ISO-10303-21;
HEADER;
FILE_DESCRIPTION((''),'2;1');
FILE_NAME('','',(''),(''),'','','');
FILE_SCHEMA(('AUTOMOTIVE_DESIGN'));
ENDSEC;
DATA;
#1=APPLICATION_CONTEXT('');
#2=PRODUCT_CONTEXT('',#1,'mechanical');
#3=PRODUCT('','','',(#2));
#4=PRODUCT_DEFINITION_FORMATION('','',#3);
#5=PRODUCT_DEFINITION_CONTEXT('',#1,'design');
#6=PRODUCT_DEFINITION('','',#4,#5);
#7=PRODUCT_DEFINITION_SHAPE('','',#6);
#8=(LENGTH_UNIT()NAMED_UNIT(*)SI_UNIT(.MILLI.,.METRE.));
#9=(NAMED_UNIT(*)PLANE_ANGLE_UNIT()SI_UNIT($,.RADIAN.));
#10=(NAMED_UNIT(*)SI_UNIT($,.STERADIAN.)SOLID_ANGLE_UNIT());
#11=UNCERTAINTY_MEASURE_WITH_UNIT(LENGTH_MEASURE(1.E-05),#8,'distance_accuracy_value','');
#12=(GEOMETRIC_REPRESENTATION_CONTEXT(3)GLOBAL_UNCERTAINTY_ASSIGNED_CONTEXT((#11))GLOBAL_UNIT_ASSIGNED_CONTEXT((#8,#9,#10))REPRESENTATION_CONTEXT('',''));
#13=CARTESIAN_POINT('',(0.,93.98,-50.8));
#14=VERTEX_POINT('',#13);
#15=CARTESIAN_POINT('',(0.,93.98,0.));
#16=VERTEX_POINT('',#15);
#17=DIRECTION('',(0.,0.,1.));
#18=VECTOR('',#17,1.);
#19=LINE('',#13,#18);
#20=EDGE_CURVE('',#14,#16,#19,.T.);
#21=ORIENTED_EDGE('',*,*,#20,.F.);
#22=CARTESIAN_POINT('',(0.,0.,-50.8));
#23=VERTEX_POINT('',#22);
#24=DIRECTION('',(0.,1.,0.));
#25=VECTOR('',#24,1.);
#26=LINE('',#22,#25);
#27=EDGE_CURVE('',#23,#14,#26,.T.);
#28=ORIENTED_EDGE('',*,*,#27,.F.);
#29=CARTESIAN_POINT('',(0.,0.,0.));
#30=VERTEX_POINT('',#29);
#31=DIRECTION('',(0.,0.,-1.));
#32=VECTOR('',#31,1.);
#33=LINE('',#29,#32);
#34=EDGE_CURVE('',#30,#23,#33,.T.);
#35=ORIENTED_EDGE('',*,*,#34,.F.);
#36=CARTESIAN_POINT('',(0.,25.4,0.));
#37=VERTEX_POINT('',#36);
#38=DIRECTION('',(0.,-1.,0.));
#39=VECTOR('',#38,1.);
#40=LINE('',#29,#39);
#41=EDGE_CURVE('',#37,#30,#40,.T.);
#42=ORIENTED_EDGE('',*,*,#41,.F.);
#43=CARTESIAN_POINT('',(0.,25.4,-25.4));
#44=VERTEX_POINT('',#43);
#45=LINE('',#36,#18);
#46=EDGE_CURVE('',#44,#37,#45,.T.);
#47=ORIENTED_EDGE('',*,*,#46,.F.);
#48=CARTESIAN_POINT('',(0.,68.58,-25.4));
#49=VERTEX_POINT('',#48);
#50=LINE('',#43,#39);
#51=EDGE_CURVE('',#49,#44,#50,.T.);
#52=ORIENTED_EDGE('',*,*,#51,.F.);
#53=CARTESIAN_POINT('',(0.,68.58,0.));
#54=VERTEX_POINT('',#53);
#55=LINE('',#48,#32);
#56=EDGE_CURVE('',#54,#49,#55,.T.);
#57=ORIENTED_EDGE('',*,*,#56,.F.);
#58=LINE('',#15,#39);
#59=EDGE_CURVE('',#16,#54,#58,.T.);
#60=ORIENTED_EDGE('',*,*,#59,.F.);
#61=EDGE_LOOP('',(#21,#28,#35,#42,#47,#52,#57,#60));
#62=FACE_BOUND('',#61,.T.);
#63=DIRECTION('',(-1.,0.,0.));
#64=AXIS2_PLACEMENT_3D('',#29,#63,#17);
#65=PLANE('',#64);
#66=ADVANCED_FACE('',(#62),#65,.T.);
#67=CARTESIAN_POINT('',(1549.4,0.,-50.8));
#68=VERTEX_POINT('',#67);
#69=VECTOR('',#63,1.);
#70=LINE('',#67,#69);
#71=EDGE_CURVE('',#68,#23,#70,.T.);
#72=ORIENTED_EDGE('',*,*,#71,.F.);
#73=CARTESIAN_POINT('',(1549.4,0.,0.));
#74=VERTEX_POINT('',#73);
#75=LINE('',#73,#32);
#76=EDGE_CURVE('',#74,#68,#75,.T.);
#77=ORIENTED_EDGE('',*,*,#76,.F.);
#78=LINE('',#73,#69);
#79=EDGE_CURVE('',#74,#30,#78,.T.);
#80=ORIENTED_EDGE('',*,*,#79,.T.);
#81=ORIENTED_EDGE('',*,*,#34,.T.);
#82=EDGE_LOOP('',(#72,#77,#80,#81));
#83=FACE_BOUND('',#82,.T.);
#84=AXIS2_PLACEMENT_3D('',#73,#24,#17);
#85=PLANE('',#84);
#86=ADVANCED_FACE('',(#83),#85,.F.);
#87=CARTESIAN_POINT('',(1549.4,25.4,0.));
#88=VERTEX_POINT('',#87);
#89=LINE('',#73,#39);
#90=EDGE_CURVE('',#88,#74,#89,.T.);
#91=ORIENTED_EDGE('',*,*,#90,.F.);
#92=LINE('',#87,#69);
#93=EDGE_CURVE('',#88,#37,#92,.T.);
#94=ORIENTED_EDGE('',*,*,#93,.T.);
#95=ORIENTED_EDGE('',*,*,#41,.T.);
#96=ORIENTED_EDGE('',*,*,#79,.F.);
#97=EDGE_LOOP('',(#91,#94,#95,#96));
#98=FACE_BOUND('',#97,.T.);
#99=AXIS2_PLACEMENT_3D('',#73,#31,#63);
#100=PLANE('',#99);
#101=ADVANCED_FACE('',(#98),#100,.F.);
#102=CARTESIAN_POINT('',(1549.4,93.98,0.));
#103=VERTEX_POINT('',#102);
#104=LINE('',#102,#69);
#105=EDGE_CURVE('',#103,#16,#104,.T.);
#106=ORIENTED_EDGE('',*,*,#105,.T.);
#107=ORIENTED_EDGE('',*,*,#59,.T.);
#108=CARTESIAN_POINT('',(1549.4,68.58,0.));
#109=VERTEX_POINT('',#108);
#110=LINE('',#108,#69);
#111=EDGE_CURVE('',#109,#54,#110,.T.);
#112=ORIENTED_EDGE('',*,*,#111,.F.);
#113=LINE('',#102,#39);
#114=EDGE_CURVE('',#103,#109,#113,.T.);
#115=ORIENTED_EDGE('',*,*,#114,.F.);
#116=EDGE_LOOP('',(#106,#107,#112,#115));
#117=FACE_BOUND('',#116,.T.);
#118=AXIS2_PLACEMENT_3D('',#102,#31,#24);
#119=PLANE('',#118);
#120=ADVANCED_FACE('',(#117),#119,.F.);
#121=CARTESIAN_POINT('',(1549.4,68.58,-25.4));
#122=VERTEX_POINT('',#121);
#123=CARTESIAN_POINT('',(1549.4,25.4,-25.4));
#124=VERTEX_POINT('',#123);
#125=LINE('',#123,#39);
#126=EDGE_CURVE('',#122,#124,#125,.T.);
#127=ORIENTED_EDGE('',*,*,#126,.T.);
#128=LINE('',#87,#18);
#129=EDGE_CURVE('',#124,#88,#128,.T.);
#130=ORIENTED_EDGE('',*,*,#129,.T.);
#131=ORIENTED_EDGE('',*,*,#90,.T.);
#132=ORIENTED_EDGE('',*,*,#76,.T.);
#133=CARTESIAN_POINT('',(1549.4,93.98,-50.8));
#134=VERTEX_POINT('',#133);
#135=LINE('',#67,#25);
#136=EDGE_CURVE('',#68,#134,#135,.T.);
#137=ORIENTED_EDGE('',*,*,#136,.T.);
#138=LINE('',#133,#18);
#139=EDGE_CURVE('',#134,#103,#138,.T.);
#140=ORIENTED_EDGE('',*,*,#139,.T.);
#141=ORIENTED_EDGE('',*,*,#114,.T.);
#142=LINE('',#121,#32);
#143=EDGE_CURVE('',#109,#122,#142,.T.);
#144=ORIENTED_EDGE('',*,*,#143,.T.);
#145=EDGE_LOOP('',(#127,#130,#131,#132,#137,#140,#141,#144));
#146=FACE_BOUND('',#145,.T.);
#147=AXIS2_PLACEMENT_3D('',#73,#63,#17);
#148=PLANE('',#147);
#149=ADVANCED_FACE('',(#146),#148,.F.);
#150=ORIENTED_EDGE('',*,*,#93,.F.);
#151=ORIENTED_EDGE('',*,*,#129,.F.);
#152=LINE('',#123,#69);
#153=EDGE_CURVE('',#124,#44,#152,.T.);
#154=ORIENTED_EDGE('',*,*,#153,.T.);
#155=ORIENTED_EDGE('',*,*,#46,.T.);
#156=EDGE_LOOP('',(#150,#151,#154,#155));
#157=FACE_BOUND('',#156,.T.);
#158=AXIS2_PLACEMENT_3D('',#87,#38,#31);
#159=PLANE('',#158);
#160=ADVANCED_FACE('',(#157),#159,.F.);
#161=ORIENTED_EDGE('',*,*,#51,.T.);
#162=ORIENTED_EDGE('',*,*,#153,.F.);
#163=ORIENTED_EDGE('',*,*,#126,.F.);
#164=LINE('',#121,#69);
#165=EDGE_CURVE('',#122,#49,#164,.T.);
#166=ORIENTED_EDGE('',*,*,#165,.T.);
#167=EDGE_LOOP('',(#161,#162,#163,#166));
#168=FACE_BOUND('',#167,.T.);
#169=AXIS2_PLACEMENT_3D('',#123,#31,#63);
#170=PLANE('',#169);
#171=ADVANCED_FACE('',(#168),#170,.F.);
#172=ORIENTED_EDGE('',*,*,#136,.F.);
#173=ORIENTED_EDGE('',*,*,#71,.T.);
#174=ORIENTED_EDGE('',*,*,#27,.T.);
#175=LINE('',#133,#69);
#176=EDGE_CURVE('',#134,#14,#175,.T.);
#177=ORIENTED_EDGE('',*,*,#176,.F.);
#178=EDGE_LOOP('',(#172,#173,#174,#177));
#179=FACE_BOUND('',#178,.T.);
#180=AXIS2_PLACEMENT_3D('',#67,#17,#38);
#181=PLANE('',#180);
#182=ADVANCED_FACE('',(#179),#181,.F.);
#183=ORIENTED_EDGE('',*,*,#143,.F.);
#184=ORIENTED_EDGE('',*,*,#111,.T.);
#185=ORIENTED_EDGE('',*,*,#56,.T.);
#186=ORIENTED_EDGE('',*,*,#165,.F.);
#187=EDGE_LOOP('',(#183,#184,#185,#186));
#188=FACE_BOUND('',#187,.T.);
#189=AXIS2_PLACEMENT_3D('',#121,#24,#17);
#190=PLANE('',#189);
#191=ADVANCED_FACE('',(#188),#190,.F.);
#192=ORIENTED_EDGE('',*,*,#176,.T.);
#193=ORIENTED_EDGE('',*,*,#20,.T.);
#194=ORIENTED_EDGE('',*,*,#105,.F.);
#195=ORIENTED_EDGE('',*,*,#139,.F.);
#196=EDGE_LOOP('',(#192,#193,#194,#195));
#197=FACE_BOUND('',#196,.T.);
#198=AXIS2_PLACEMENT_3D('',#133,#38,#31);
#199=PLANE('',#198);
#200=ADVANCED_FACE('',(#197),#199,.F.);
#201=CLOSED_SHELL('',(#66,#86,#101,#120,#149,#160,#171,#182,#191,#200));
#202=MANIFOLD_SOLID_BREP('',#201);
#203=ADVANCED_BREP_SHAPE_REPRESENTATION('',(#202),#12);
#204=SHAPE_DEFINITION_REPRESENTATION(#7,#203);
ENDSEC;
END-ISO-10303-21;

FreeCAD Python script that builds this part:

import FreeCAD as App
import Part
import Sketcher

V = App.Vector
Q = App.Units.Quantity


def add_polygon(sketch, points):
    """Adds a closed chain of lines whose ends are joined by coincident constraints."""
    first, n = sketch.GeometryCount, len(points)
    for a, b in zip(points, points[1:] + points[:1]):
        sketch.addGeometry(Part.LineSegment(App.Vector(*a, 0), App.Vector(*b, 0)), False)
    for i in range(n):
        sketch.addConstraint(Sketcher.Constraint("Coincident", first + i, 2, first + (i + 1) % n, 1))

doc = App.newDocument("Part")
body = doc.addObject("PartDesign::Body", "Body")

# Sketch on YZ plane
sketch1 = body.newObject("Sketcher::SketchObject", "Sketch")
sketch1.AttachmentSupport = (doc.getObject("YZ_Plane"), [""])
sketch1.MapMode = "FlatFace"
add_polygon(sketch1, [(0, 0), (0, -51), (94, -51), (94, 0), (69, 0), (69, -25), (25, -25), (25, 0)])  # lines 0-7
sketch1.addConstraint(Sketcher.Constraint("Vertical", 0))
sketch1.addConstraint(Sketcher.Constraint("Horizontal", 1))
sketch1.addConstraint(Sketcher.Constraint("Vertical", 2))
sketch1.addConstraint(Sketcher.Constraint("Horizontal", 3))
sketch1.addConstraint(Sketcher.Constraint("Vertical", 4))
sketch1.addConstraint(Sketcher.Constraint("Horizontal", 5))
sketch1.addConstraint(Sketcher.Constraint("Vertical", 6))
sketch1.addConstraint(Sketcher.Constraint("Horizontal", 7))
sketch1.addConstraint(Sketcher.Constraint("Coincident", 7, 2, -1, 1))
sketch1.addConstraint(Sketcher.Constraint("PointOnObject", 2, 2, -1))
sketch1.addConstraint(Sketcher.Constraint("Equal", 3, 7))
sketch1.addConstraint(Sketcher.Constraint("Equal", 7, 4))
sketch1.addConstraint(Sketcher.Constraint("DistanceX", 3, 2, 3, 1, Q("1 in")))
sketch1.addConstraint(Sketcher.Constraint("DistanceY", 0, 2, 0, 1, Q("2 in")))
sketch1.addConstraint(Sketcher.Constraint("DistanceX", 1, 1, 1, 2, Q("3.7 in")))
pad1 = body.newObject("PartDesign::Pad", "Pad")
pad1.Profile = sketch1
pad1.Length = Q("61 in")

doc.recompute()
